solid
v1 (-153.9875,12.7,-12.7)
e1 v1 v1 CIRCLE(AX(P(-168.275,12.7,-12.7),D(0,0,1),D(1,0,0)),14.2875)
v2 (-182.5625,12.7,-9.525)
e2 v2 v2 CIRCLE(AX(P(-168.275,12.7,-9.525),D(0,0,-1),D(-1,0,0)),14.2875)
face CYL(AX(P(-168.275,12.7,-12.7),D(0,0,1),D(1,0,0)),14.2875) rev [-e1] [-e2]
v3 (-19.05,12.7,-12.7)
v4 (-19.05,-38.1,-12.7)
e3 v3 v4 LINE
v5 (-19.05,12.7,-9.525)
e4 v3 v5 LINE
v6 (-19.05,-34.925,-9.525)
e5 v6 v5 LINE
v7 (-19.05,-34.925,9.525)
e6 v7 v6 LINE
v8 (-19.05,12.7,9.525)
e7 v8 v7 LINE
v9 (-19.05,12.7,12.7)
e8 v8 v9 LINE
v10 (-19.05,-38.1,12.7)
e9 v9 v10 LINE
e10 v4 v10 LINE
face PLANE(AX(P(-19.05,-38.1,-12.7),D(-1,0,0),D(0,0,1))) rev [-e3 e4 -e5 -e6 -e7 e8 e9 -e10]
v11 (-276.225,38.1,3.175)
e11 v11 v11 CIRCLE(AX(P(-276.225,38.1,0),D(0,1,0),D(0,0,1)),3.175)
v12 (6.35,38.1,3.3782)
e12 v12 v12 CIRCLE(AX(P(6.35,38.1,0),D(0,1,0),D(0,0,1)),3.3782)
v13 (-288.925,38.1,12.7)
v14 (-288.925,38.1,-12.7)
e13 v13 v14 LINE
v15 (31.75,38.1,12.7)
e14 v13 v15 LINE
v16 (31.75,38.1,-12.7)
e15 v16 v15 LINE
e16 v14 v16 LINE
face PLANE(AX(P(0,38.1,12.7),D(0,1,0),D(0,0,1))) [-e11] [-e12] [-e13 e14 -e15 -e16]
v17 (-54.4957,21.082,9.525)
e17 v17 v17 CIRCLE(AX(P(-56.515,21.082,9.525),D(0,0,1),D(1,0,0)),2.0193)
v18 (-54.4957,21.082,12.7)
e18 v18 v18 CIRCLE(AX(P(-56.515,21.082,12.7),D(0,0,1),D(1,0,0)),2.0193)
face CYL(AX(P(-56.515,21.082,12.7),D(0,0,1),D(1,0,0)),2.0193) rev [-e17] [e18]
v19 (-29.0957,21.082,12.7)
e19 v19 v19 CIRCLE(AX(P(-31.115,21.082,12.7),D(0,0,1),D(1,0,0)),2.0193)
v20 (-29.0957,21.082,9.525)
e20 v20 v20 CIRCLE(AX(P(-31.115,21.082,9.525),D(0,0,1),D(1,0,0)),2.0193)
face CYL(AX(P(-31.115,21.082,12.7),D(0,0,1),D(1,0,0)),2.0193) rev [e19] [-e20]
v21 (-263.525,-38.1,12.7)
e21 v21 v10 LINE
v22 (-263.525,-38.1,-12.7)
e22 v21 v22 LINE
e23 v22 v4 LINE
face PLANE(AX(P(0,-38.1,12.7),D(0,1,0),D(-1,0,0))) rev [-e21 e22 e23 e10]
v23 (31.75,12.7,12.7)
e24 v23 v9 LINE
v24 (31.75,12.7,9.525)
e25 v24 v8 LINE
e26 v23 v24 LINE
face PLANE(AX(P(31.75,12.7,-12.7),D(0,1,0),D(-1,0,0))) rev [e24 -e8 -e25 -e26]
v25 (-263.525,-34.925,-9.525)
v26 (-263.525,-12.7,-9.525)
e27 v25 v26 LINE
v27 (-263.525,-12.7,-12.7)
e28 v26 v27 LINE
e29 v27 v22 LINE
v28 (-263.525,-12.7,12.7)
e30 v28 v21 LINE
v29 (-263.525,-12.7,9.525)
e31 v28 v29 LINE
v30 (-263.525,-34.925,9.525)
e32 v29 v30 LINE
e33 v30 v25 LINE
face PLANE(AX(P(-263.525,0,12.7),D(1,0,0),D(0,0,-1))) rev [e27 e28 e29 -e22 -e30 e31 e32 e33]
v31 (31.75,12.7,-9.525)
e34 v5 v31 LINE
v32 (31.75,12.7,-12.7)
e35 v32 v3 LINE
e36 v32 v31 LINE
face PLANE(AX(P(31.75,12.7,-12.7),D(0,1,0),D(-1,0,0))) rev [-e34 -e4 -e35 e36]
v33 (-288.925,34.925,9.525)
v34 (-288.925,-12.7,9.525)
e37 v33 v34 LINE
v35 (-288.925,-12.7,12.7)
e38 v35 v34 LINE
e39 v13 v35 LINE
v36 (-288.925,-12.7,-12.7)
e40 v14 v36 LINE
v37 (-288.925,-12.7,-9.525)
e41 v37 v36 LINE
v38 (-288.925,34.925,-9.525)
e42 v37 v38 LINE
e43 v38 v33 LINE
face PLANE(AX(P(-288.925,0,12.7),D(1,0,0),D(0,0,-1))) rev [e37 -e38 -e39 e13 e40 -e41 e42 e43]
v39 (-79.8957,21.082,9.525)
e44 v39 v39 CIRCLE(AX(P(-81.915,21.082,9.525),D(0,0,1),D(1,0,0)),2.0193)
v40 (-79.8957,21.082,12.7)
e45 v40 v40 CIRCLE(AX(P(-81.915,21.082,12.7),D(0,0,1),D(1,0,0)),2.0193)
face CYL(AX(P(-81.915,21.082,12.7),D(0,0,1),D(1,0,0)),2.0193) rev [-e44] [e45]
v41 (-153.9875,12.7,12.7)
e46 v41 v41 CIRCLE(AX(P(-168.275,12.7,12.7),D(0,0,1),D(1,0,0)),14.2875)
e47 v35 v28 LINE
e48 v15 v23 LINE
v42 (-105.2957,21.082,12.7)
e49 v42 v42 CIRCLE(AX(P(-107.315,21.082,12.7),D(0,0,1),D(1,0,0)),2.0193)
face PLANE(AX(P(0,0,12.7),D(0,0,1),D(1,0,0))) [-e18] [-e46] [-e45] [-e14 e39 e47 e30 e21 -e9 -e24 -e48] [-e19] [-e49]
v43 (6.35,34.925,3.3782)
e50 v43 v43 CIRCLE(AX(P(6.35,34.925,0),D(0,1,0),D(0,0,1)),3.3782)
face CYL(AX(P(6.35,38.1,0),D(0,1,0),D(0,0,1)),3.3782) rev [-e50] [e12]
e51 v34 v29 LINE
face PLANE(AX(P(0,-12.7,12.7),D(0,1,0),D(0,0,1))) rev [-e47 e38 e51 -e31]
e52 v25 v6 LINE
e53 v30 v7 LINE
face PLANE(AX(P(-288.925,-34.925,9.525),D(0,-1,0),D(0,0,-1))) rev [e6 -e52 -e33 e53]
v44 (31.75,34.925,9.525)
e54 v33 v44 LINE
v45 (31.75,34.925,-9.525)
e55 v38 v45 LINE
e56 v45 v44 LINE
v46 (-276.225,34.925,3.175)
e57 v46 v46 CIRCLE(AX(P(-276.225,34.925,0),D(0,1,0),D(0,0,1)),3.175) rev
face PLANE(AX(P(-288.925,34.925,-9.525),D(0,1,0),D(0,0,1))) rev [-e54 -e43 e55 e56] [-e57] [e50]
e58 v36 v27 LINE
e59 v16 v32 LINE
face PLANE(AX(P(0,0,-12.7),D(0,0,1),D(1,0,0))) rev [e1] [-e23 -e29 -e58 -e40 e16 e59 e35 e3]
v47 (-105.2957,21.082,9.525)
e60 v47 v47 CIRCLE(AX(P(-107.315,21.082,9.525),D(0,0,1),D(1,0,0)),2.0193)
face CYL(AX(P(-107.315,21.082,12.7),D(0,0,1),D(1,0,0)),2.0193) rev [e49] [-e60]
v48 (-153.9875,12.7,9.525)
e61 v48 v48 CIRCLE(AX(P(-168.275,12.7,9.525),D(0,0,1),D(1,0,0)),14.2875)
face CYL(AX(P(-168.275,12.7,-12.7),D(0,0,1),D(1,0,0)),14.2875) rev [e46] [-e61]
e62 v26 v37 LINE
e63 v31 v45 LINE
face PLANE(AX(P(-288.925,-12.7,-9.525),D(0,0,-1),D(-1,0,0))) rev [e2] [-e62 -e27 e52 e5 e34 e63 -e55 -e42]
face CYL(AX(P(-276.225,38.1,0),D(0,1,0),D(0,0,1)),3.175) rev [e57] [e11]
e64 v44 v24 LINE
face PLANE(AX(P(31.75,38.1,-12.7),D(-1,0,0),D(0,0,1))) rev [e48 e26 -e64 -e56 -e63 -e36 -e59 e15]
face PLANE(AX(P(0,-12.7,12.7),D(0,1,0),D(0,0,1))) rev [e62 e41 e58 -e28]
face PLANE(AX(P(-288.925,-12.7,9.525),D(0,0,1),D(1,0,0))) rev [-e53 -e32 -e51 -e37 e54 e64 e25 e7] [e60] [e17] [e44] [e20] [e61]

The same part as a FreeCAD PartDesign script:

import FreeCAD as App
import Part
import Sketcher
Q = App.Units.Quantity


def add_polygon(sketch, points):
    """Adds a closed chain of lines whose ends are joined by coincident constraints."""
    first, n = sketch.GeometryCount, len(points)
    for a, b in zip(points, points[1:] + points[:1]):
        sketch.addGeometry(Part.LineSegment(App.Vector(*a, 0), App.Vector(*b, 0)), False)
    for i in range(n):
        sketch.addConstraint(Sketcher.Constraint("Coincident", first + i, 2, first + (i + 1) % n, 1))

doc = App.newDocument("Part")
body = doc.addObject("PartDesign::Body", "Body")

# Sketch on XY plane
sketch1 = body.newObject("Sketcher::SketchObject", "Sketch")
sketch1.AttachmentSupport = (doc.getObject("XY_Plane"), [""])
sketch1.MapMode = "FlatFace"
add_polygon(sketch1, [(-288.925, 38.1), (-288.925, -12.7), (-263.525, -12.7), (-263.525, -38.1), (263.525, -38.1), (263.525, -12.7), (288.925, -12.7), (288.925, 38.1)])  # lines 0-7
sketch1.addConstraint([
    Sketcher.Constraint("Vertical", 0),
    Sketcher.Constraint("Horizontal", 1),
    Sketcher.Constraint("Vertical", 2),
    Sketcher.Constraint("Horizontal", 3),
    Sketcher.Constraint("Vertical", 4),
    Sketcher.Constraint("Horizontal", 5),
    Sketcher.Constraint("Vertical", 6),
    Sketcher.Constraint("Horizontal", 7),
    Sketcher.Constraint("Symmetric", 1, 2, 4, 2, -2),
    Sketcher.Constraint("Equal", 1, 5),
    Sketcher.Constraint("Equal", 5, 2),
    Sketcher.Constraint("DistanceX", 1, 1, 1, 2, Q("1 in")),
    Sketcher.Constraint("DistanceY", 0, 2, 0, 1, Q("2 in")),
    Sketcher.Constraint("DistanceX", 3, 1, 3, 2, Q("20.75 in")),
    Sketcher.Constraint("DistanceY", 0, 2, -1, 1, Q("0.5 in")),
])
pad1 = body.newObject("PartDesign::Pad", "Pad")
pad1.Profile = sketch1
pad1.Length = Q("1 in")
pad1.Midplane = True

# Sketch on XZ plane
sketch2 = body.newObject("Sketcher::SketchObject", "Sketch001")
sketch2.AttachmentSupport = (doc.getObject("XZ_Plane"), [""])
sketch2.MapMode = "FlatFace"
sketch2.AttachmentOffset = App.Placement(App.Vector(0, 0, -1.5 * 25.4), App.Rotation())
sketch2.addGeometry([
    Part.Circle(App.Vector(-276.225, 0, 0), App.Vector(0, 0, 1), 3.175),
    Part.Circle(App.Vector(276.225, 0, 0), App.Vector(0, 0, 1), 3.175),
], False)
sketch2.addConstraint([
    Sketcher.Constraint("Equal", 0, 1),
    Sketcher.Constraint("Symmetric", 0, 3, 1, 3, -1, 1),
    Sketcher.Constraint("PointOnObject", 0, 3, -1),
    Sketcher.Constraint("Diameter", 0, Q("0.25 in")),
    Sketcher.Constraint("DistanceX", 0, 3, 1, 3, Q("21.75 in")),
])
doc.recompute()
hole = body.newObject("PartDesign::Hole", "Hole")
hole.Profile = sketch2
hole.ThreadType = "None"
hole.Diameter = Q("0.25 in")
hole.DepthType = "ThroughAll"
hole.Reversed = True

# Sketch on YZ plane
sketch3 = body.newObject("Sketcher::SketchObject", "Sketch002")
sketch3.AttachmentSupport = (doc.getObject("YZ_Plane"), [""])
sketch3.MapMode = "FlatFace"
sketch3.AttachmentOffset = App.Placement(App.Vector(0, 0, 11.375 * 25.4), App.Rotation())
add_polygon(sketch3, [(34.925, -9.525), (34.925, 9.525), (-34.925, 9.525), (-34.925, -9.525)])  # lines 0-3
sketch3.addConstraint([
    Sketcher.Constraint("Vertical", 0),
    Sketcher.Constraint("Horizontal", 1),
    Sketcher.Constraint("Vertical", 2),
    Sketcher.Constraint("Horizontal", 3),
    Sketcher.Constraint("Symmetric", 0, 2, 2, 2, -1, 1),
    Sketcher.Constraint("DistanceX", 1, 2, 1, 1, Q("2.75 in")),
    Sketcher.Constraint("DistanceY", 0, 1, 0, 2, Q("0.75 in")),
])
pocket1 = body.newObject("PartDesign::Pocket", "Pocket")
pocket1.Profile = sketch3
pocket1.Type = "ThroughAll"

# Sketch on XY plane
sketch4 = body.newObject("Sketcher::SketchObject", "Sketch003")
sketch4.AttachmentSupport = (doc.getObject("XY_Plane"), [""])
sketch4.MapMode = "FlatFace"
sketch4.AttachmentOffset = App.Placement(App.Vector(0, 0, 0.5 * 25.4), App.Rotation())
sketch4.addGeometry([
    Part.Circle(App.Vector(-168.275, 12.7, 0), App.Vector(0, 0, 1), 14.2875),
    Part.Circle(App.Vector(168.275, 12.7, 0), App.Vector(0, 0, 1), 14.2875),
], False)
sketch4.addConstraint([
    Sketcher.Constraint("Equal", 0, 1),
    Sketcher.Constraint("Symmetric", 0, 3, 1, 3, -2),
    Sketcher.Constraint("Diameter", 0, Q("1.125 in")),
    Sketcher.Constraint("DistanceY", -1, 1, 0, 3, Q("0.5 in")),
    Sketcher.Constraint("DistanceX", 0, 3, 1, 3, Q("13.25 in")),
])
pocket2 = body.newObject("PartDesign::Pocket", "Pocket001")
pocket2.Profile = sketch4
pocket2.Type = "ThroughAll"

# Sketch on XY plane
sketch5 = body.newObject("Sketcher::SketchObject", "Sketch004")
sketch5.AttachmentSupport = (doc.getObject("XY_Plane"), [""])
sketch5.MapMode = "FlatFace"
sketch5.AttachmentOffset = App.Placement(App.Vector(0, 0, 0.5 * 25.4), App.Rotation())
sketch5.addGeometry([
    Part.Circle(App.Vector(-107.315, 21.082, 0), App.Vector(0, 0, 1), 2.0193),
    Part.Circle(App.Vector(-81.915, 21.082, 0), App.Vector(0, 0, 1), 2.0193),
    Part.Circle(App.Vector(-56.515, 21.082, 0), App.Vector(0, 0, 1), 2.0193),
    Part.Circle(App.Vector(-31.115, 21.082, 0), App.Vector(0, 0, 1), 2.0193),
], False)
sketch5.addConstraint([
    Sketcher.Constraint("Equal", 0, 1),
    Sketcher.Constraint("Equal", 1, 2),
    Sketcher.Constraint("Equal", 2, 3),
    Sketcher.Constraint("Horizontal", 0, 3, 1, 3),
    Sketcher.Constraint("Horizontal", 1, 3, 2, 3),
    Sketcher.Constraint("Horizontal", 2, 3, 3, 3),
    Sketcher.Constraint("Diameter", 0, Q("0.159 in")),
    Sketcher.Constraint("DistanceX", 0, 3, 1, 3, Q("1 in")),
    Sketcher.Constraint("DistanceX", 1, 3, 2, 3, Q("1 in")),
    Sketcher.Constraint("DistanceX", 2, 3, 3, 3, Q("1 in")),
    Sketcher.Constraint("DistanceY", -1, 1, 0, 3, Q("0.83 in")),
    Sketcher.Constraint("DistanceX", 0, 3, -1, 1, Q("4.225 in")),
])
doc.recompute()
hole2 = body.newObject("PartDesign::Hole", "Hole001")
hole2.Profile = sketch5
hole2.ThreadType = "None"
hole2.Diameter = Q("0.159 in")
hole2.DepthType = "Dimension"
hole2.Depth = Q("0.54 in")
hole2.DrillPoint = "Angled"
hole2.DrillPointAngle = 118

# Sketch on XY plane
sketch6 = body.newObject("Sketcher::SketchObject", "Sketch005")
sketch6.AttachmentSupport = (doc.getObject("XY_Plane"), [""])
sketch6.MapMode = "FlatFace"
sketch6.AttachmentOffset = App.Placement(App.Vector(0, 0, 0.5 * 25.4), App.Rotation())
add_polygon(sketch6, [(31.75, 38.1), (31.75, -38.1), (288.925, -38.1), (288.925, 38.1)])  # lines 0-3
sketch6.addConstraint([
    Sketcher.Constraint("Vertical", 0),
    Sketcher.Constraint("Horizontal", 1),
    Sketcher.Constraint("Vertical", 2),
    Sketcher.Constraint("Horizontal", 3),
    Sketcher.Constraint("DistanceY", 0, 2, 0, 1, Q("3 in")),
    Sketcher.Constraint("DistanceY", 0, 2, -1, 1, Q("1.5 in")),
    Sketcher.Constraint("DistanceX", 1, 1, 1, 2, Q("10.125 in")),
    Sketcher.Constraint("DistanceX", -1, 1, 0, 2, Q("1.25 in")),
])
pocket3 = body.newObject("PartDesign::Pocket", "Pocket002")
pocket3.Profile = sketch6
pocket3.Type = "ThroughAll"

# Sketch on XY plane
sketch7 = body.newObject("Sketcher::SketchObject", "Sketch006")
sketch7.AttachmentSupport = (doc.getObject("XY_Plane"), [""])
sketch7.MapMode = "FlatFace"
sketch7.AttachmentOffset = App.Placement(App.Vector(0, 0, 0.5 * 25.4), App.Rotation())
add_polygon(sketch7, [(-19.05, 12.7), (-19.05, -38.1), (31.75, -38.1), (31.75, 12.7)])  # lines 0-3
sketch7.addConstraint([
    Sketcher.Constraint("Vertical", 0),
    Sketcher.Constraint("Horizontal", 1),
    Sketcher.Constraint("Vertical", 2),
    Sketcher.Constraint("Horizontal", 3),
    Sketcher.Constraint("Equal", 3, 0),
    Sketcher.Constraint("DistanceX", 1, 1, 1, 2, Q("2 in")),
    Sketcher.Constraint("DistanceY", 0, 2, -1, 1, Q("1.5 in")),
    Sketcher.Constraint("DistanceX", 0, 2, -1, 1, Q("0.75 in")),
])
pocket4 = body.newObject("PartDesign::Pocket", "Pocket003")
pocket4.Profile = sketch7
pocket4.Type = "ThroughAll"

# Sketch on XZ plane
sketch8 = body.newObject("Sketcher::SketchObject", "Sketch007")
sketch8.AttachmentSupport = (doc.getObject("XZ_Plane"), [""])
sketch8.MapMode = "FlatFace"
sketch8.AttachmentOffset = App.Placement(App.Vector(0, 0, -1.5 * 25.4), App.Rotation())
sketch8.addGeometry(Part.Circle(App.Vector(6.35, 0, 0), App.Vector(0, 0, 1), 3.3782), False)
sketch8.addConstraint([
    Sketcher.Constraint("PointOnObject", 0, 3, -1),
    Sketcher.Constraint("Diameter", 0, Q("0.266 in")),
    Sketcher.Constraint("DistanceX", -1, 1, 0, 3, Q("0.25 in")),
])
doc.recompute()
hole3 = body.newObject("PartDesign::Hole", "Hole002")
hole3.Profile = sketch8
hole3.ThreadType = "None"
hole3.Diameter = Q("0.266 in")
hole3.DepthType = "ThroughAll"
hole3.Reversed = True

doc.recompute()
